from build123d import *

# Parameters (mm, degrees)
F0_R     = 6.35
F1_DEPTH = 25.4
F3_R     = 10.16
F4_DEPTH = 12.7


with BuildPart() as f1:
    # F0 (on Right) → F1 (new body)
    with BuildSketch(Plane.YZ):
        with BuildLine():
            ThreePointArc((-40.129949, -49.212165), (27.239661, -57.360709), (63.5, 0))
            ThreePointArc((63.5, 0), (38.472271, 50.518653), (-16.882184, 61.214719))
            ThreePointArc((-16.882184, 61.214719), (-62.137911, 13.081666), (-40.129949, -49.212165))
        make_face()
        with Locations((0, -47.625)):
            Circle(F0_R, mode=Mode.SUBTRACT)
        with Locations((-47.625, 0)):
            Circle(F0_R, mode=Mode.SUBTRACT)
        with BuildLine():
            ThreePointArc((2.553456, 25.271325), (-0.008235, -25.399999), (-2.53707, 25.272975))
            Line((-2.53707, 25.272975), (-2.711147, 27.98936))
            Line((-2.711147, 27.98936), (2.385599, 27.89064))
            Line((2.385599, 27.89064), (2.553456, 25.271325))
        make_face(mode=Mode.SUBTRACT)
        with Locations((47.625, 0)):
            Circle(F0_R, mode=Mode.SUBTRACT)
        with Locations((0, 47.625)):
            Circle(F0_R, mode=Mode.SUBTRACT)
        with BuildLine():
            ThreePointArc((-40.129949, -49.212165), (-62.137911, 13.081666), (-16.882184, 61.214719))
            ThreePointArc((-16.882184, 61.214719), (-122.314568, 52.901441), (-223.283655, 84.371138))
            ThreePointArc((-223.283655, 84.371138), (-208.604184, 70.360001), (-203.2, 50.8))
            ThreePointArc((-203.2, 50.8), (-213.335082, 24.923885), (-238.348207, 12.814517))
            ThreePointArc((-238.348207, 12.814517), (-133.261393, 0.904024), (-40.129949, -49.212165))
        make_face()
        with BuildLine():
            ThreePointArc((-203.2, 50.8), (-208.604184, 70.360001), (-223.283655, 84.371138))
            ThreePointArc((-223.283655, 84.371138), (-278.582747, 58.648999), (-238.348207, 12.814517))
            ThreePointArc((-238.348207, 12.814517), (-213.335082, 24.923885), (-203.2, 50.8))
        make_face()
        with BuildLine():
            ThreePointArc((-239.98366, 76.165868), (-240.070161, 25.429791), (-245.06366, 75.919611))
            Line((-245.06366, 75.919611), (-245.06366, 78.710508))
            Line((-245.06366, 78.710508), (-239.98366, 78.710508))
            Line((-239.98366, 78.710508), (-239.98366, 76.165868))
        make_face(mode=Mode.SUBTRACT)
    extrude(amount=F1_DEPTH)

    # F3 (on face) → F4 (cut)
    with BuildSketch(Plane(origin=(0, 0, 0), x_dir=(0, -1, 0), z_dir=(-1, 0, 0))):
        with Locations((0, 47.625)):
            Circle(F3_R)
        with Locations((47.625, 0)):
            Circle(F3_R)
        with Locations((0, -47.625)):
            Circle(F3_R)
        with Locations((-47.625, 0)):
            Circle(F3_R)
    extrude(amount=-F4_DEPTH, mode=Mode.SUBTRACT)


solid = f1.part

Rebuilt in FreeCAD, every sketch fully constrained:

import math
import FreeCAD as App
import Part
import Sketcher
from FreeCAD import Vector
Q = App.Units.Quantity

doc = App.newDocument("Part")
body = doc.addObject("PartDesign::Body", "Body")

sketch1 = doc.addObject("Sketcher::SketchObject", "Sketch")
body.addObject(sketch1)
sketch1.AttachmentSupport = (doc.YZ_Plane, [""])
sketch1.MapMode = "FlatFace"
sketch1.addGeometry(Part.ArcOfCircle(Part.Circle(Vector(0, 0, 0), Vector(0, 0, 1), 63.5), math.radians(-129), math.radians(0)), False)
sketch1.addGeometry(Part.ArcOfCircle(Part.Circle(Vector(0, 0, 0), Vector(0, 0, 1), 63.5), math.radians(0), math.radians(105)), False)
sketch1.addGeometry(Part.ArcOfCircle(Part.Circle(Vector(-91.2, 330.6, 0), Vector(0, 0, 1), 279.4), math.radians(-118), math.radians(-75)), False)
sketch1.addGeometry(Part.ArcOfCircle(Part.Circle(Vector(-241.3, 50.8, 0), Vector(0, 0, 1), 38.1), math.radians(62), math.radians(274)), False)
sketch1.addGeometry(Part.ArcOfCircle(Part.Circle(Vector(-216.7, -265.7, 0), Vector(0, 0, 1), 279.4), math.radians(51), math.radians(94)), False)
sketch1.addGeometry(Part.Circle(Vector(0, -47.6, 0), Vector(0, 0, 1), 6.3), False)
sketch1.addGeometry(Part.Circle(Vector(-47.6, 0, 0), Vector(0, 0, 1), 6.3), False)
sketch1.addGeometry(Part.LineSegment(Vector(2.4, 27.9, 0), Vector(2.6, 25.3, 0)), False)
sketch1.addGeometry(Part.ArcOfCircle(Part.Circle(Vector(0, 0, 0), Vector(0, 0, 1), 25.4), math.radians(96), math.radians(444)), False)
sketch1.addGeometry(Part.LineSegment(Vector(-2.5, 25.3, 0), Vector(-2.7, 28, 0)), False)
sketch1.addGeometry(Part.LineSegment(Vector(-2.7, 28, 0), Vector(2.4, 27.9, 0)), False)
sketch1.addGeometry(Part.Circle(Vector(47.6, 0, 0), Vector(0, 0, 1), 6.3), False)
sketch1.addGeometry(Part.LineSegment(Vector(-240, 78.7, 0), Vector(-240, 76.2, 0)), False)
sketch1.addGeometry(Part.ArcOfCircle(Part.Circle(Vector(-241.3, 50.8, 0), Vector(0, 0, 1), 25.4), math.radians(99), math.radians(447)), False)
sketch1.addGeometry(Part.LineSegment(Vector(-245.1, 75.9, 0), Vector(-245.1, 78.7, 0)), False)
sketch1.addGeometry(Part.LineSegment(Vector(-245.1, 78.7, 0), Vector(-240, 78.7, 0)), False)
sketch1.addGeometry(Part.Circle(Vector(0, 47.6, 0), Vector(0, 0, 1), 6.3), False)
sketch1.addConstraint(Sketcher.Constraint("Tangent", 0, 2, 1, 1))
sketch1.addConstraint(Sketcher.Constraint("Tangent", 1, 2, 2, 2))
sketch1.addConstraint(Sketcher.Constraint("Tangent", 2, 1, 3, 1))
sketch1.addConstraint(Sketcher.Constraint("Tangent", 3, 2, 4, 2))
sketch1.addConstraint(Sketcher.Constraint("Tangent", 4, 1, 0, 1))
sketch1.addConstraint(Sketcher.Constraint("Coincident", 7, 2, 8, 2))
sketch1.addConstraint(Sketcher.Constraint("Coincident", 8, 1, 9, 1))
sketch1.addConstraint(Sketcher.Constraint("Coincident", 9, 2, 10, 1))
sketch1.addConstraint(Sketcher.Constraint("Coincident", 10, 2, 7, 1))
sketch1.addConstraint(Sketcher.Constraint("Coincident", 12, 2, 13, 2))
sketch1.addConstraint(Sketcher.Constraint("Coincident", 13, 1, 14, 1))
sketch1.addConstraint(Sketcher.Constraint("Coincident", 14, 2, 15, 1))
sketch1.addConstraint(Sketcher.Constraint("Coincident", 15, 2, 12, 1))
sketch1.addConstraint(Sketcher.Constraint("Vertical", 12))
sketch1.addConstraint(Sketcher.Constraint("Vertical", 14))
sketch1.addConstraint(Sketcher.Constraint("Horizontal", 15))
sketch1.addConstraint(Sketcher.Constraint("Coincident", 0, 3, -1, 1))
sketch1.addConstraint(Sketcher.Constraint("Coincident", 8, 3, -1, 1))
sketch1.addConstraint(Sketcher.Constraint("Coincident", 13, 3, 3, 3))
sketch1.addConstraint(Sketcher.Constraint("Equal", 0, 1))
sketch1.addConstraint(Sketcher.Constraint("Equal", 5, 6))
sketch1.addConstraint(Sketcher.Constraint("Equal", 6, 11))
sketch1.addConstraint(Sketcher.Constraint("Equal", 8, 13))
sketch1.addConstraint(Sketcher.Constraint("Equal", 11, 16))
sketch1.addConstraint(Sketcher.Constraint("Symmetric", 6, 3, 11, 3, -1, 1))
sketch1.addConstraint(Sketcher.Constraint("Symmetric", 5, 3, 16, 3, -1, 1))
sketch1.addConstraint(Sketcher.Constraint("PointOnObject", 5, 3, -2))
sketch1.addConstraint(Sketcher.Constraint("PointOnObject", 6, 3, -1))
sketch1.addConstraint(Sketcher.Constraint("PointOnObject", 0, 2, -1))
sketch1.addConstraint(Sketcher.Constraint("Parallel", 7, 9))
sketch1.addConstraint(Sketcher.Constraint("Radius", 2, Q("11.0000001 in")))
sketch1.addConstraint(Sketcher.Constraint("Radius", 8, Q("1 in")))
sketch1.addConstraint(Sketcher.Constraint("Diameter", 5, Q("0.5 in")))
sketch1.addConstraint(Sketcher.Constraint("Radius", 0, Q("2.5 in")))
sketch1.addConstraint(Sketcher.Constraint("Radius", 3, Q("1.5 in")))
sketch1.addConstraint(Sketcher.Constraint("DistanceX", 15, 1, 15, 2, Q("0.2 in")))
sketch1.addConstraint(Sketcher.Constraint("DistanceY", -1, 1, 3, 3, Q("2 in")))
sketch1.addConstraint(Sketcher.Constraint("DistanceX", 3, 3, -1, 1, Q("9.5 in")))
sketch1.addConstraint(Sketcher.Constraint("DistanceX", 6, 3, 11, 3, Q("3.75 in")))
sketch1.addConstraint(Sketcher.Constraint("DistanceY", 5, 3, -1, 1, Q("1.875 in")))
sketch1.addConstraint(Sketcher.Constraint("Radius", 4, Q("279.400007 mm")))
sketch1.addConstraint(Sketcher.Constraint("Distance", 10, Q("5.097702 mm")))
sketch1.addConstraint(Sketcher.Constraint("DistanceY", 12, 2, 12, 1, Q("2.54464 mm")))
sketch1.addConstraint(Sketcher.Constraint("DistanceX", -1, 1, 10, 2, Q("2.385599 mm")))
sketch1.addConstraint(Sketcher.Constraint("DistanceY", 14, 1, 14, 2, Q("2.790897 mm")))
sketch1.addConstraint(Sketcher.Constraint("DistanceX", 8, 1, -1, 1, Q("2.53707 mm")))
sketch1.addConstraint(Sketcher.Constraint("DistanceY", -1, 1, 9, 2, Q("27.98936 mm")))
sketch1.addConstraint(Sketcher.Constraint("DistanceY", -1, 1, 10, 2, Q("27.89064 mm")))
pad1 = doc.addObject("PartDesign::Pad", "Pad")
body.addObject(pad1)
pad1.Profile = sketch1
pad1.Length = Q("1 in")

sketch2 = doc.addObject("Sketcher::SketchObject", "Sketch001")
body.addObject(sketch2)
sketch2.AttachmentSupport = (doc.YZ_Plane, [""])
sketch2.MapMode = "FlatFace"
sketch2.addGeometry(Part.Circle(Vector(0, 48, 0), Vector(0, 0, 1), 10), False)
sketch2.addGeometry(Part.Circle(Vector(-48, 0, 0), Vector(0, 0, 1), 10), False)
sketch2.addGeometry(Part.Circle(Vector(0, -48, 0), Vector(0, 0, 1), 10), False)
sketch2.addGeometry(Part.Circle(Vector(48, 0, 0), Vector(0, 0, 1), 10), False)
sketch2.addConstraint(Sketcher.Constraint("Equal", 0, 1))
sketch2.addConstraint(Sketcher.Constraint("Equal", 1, 2))
sketch2.addConstraint(Sketcher.Constraint("Equal", 2, 3))
sketch2.addConstraint(Sketcher.Constraint("Symmetric", 0, 3, 2, 3, -1, 1))
sketch2.addConstraint(Sketcher.Constraint("Symmetric", 1, 3, 3, 3, -1, 1))
sketch2.addConstraint(Sketcher.Constraint("PointOnObject", 0, 3, -2))
sketch2.addConstraint(Sketcher.Constraint("PointOnObject", 1, 3, -1))
sketch2.addConstraint(Sketcher.Constraint("Diameter", 0, Q("0.8 in")))
sketch2.addConstraint(Sketcher.Constraint("DistanceY", 2, 3, 0, 3, Q("3.75 in")))
sketch2.addConstraint(Sketcher.Constraint("DistanceX", 1, 3, 3, 3, Q("3.75 in")))
pocket1 = doc.addObject("PartDesign::Pocket", "Pocket")
body.addObject(pocket1)
pocket1.Profile = sketch2
pocket1.Length = Q("0.5 in")
pocket1.Reversed = True

doc.recompute()
